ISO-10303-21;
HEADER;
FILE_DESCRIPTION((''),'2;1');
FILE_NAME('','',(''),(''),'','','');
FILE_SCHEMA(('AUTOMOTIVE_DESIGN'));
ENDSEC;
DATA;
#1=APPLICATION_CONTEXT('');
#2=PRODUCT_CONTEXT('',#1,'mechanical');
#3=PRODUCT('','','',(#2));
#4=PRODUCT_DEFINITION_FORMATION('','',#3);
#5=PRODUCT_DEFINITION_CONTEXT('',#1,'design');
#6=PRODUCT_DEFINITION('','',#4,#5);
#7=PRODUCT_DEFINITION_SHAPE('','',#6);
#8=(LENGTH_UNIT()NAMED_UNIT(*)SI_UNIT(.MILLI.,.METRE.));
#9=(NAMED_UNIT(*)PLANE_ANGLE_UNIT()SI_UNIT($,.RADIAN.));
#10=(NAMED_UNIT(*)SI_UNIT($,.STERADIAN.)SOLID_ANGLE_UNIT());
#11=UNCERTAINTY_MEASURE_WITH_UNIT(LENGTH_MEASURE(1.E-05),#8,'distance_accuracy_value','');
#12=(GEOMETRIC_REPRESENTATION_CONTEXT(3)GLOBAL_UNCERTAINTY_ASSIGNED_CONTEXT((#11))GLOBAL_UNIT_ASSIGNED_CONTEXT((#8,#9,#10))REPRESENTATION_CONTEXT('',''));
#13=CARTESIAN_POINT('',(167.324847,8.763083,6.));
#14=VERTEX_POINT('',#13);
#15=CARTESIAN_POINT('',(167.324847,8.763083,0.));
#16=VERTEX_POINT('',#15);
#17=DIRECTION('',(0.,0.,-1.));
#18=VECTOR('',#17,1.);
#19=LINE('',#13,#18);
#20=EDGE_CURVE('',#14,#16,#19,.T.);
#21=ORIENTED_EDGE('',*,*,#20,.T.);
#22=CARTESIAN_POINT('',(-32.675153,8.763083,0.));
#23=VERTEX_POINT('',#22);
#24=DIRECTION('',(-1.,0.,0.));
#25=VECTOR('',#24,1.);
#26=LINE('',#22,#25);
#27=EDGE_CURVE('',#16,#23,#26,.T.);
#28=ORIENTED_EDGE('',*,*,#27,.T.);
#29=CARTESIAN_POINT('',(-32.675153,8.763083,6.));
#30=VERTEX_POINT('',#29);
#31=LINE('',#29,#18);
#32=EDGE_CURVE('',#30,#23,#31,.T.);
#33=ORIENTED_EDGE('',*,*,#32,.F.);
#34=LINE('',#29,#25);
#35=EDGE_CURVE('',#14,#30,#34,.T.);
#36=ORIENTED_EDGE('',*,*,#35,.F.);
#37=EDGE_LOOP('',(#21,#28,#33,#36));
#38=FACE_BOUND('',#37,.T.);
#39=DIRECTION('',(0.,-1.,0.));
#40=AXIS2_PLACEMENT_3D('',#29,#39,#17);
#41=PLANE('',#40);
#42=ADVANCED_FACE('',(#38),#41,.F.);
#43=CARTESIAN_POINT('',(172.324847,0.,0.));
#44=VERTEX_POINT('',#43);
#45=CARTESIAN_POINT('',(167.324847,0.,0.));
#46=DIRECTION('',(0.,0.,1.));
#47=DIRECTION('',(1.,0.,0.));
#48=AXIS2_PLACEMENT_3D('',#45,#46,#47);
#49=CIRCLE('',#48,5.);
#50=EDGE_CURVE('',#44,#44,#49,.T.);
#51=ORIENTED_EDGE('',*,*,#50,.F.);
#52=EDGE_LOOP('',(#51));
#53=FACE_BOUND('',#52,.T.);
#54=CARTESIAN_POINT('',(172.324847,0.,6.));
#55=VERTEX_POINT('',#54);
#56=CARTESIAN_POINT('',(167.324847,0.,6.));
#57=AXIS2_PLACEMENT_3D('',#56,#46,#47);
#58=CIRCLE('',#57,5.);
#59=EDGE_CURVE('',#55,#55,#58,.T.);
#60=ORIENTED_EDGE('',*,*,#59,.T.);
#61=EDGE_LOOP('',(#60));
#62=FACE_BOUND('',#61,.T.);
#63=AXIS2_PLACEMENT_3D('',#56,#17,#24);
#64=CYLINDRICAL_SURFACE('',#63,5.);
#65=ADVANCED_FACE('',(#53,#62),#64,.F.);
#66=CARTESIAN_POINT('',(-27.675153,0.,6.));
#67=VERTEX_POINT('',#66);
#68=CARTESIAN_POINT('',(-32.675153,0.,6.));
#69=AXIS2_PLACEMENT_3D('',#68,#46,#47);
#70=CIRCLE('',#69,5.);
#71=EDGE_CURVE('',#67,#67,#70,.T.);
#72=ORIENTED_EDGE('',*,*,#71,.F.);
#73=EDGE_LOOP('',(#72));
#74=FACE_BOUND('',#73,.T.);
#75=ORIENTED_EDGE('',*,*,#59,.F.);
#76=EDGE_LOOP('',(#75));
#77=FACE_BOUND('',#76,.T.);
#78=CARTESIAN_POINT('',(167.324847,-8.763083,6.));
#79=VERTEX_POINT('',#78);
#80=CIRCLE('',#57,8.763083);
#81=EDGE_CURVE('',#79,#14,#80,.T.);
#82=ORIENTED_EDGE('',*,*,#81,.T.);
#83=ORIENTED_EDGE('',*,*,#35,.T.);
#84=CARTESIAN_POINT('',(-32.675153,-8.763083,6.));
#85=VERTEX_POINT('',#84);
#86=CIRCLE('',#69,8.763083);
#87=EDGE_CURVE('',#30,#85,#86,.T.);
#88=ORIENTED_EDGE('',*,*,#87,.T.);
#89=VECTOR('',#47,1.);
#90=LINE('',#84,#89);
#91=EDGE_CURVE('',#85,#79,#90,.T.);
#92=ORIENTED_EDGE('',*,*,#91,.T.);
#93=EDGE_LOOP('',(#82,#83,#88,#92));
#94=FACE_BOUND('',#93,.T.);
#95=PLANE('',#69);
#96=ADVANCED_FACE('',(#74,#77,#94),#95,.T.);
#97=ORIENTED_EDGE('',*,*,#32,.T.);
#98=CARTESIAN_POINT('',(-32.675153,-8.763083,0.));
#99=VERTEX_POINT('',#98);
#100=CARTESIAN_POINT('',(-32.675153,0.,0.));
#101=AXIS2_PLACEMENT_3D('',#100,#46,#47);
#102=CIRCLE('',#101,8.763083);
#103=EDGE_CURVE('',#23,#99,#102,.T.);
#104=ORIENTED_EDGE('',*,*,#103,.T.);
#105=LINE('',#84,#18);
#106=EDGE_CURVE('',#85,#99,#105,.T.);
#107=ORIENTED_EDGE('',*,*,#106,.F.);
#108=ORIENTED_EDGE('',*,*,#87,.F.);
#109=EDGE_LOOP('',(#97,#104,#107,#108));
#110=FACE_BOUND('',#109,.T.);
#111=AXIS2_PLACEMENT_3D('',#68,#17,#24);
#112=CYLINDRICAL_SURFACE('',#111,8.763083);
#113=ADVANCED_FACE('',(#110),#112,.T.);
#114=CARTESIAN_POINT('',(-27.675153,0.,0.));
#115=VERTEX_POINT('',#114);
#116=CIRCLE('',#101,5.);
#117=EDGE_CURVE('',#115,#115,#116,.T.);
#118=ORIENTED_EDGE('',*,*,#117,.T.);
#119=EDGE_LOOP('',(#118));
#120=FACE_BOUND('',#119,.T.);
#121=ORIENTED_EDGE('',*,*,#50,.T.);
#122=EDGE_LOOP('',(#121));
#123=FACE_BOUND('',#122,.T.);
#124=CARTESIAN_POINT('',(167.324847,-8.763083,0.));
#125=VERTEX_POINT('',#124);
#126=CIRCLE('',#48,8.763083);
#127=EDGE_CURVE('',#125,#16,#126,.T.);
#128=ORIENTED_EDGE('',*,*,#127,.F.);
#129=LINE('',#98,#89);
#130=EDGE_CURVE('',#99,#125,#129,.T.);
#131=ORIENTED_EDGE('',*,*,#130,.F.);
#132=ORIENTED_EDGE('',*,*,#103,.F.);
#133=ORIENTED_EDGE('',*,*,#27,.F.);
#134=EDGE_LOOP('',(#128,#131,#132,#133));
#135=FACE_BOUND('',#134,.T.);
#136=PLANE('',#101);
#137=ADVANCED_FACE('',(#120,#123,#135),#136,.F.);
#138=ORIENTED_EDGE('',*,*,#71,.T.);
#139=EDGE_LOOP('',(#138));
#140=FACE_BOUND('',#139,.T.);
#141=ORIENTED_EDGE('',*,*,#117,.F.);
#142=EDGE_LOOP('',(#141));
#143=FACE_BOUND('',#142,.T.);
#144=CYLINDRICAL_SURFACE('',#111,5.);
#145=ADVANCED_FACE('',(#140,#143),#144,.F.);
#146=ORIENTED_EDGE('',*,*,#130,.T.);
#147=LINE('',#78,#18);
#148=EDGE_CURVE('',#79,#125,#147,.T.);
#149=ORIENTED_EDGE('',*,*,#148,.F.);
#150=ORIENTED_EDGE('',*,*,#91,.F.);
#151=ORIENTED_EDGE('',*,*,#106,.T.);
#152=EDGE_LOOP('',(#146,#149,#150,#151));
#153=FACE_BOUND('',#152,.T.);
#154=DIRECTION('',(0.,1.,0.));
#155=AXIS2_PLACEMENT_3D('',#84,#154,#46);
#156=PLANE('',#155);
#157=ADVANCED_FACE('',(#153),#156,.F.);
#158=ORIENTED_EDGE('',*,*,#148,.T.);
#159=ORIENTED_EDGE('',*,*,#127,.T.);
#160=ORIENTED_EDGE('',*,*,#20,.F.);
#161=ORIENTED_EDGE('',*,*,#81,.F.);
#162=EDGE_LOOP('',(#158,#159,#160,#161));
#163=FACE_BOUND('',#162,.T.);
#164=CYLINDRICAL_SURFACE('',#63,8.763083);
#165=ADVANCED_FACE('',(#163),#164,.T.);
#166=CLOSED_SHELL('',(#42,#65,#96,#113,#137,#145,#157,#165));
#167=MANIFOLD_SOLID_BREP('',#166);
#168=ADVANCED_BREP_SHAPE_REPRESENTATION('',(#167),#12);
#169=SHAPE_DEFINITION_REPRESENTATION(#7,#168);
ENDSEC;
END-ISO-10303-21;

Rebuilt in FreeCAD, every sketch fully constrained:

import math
import FreeCAD as App
import Part
import Sketcher
Q = App.Units.Quantity

doc = App.newDocument("Part")
body = doc.addObject("PartDesign::Body", "Body")

# Sketch on XY plane
sketch1 = body.newObject("Sketcher::SketchObject", "Sketch")
sketch1.AttachmentSupport = (doc.getObject("XY_Plane"), [""])
sketch1.MapMode = "FlatFace"
sketch1.addGeometry(Part.LineSegment(App.Vector(167, 9, 0), App.Vector(-33, 9, 0)), False)
sketch1.addGeometry(Part.ArcOfCircle(Part.Circle(App.Vector(-33, 0, 0), App.Vector(0, 0, 1), 9), math.radians(90), math.radians(270)), False)
sketch1.addGeometry(Part.LineSegment(App.Vector(-33, -9, 0), App.Vector(167, -9, 0)), False)
sketch1.addGeometry(Part.ArcOfCircle(Part.Circle(App.Vector(167, 0, 0), App.Vector(0, 0, 1), 9), math.radians(-90), math.radians(90)), False)
sketch1.addGeometry(Part.Circle(App.Vector(167, 0, 0), App.Vector(0, 0, 1), 5), False)
sketch1.addGeometry(Part.Circle(App.Vector(-33, 0, 0), App.Vector(0, 0, 1), 5), False)
sketch1.addConstraint(Sketcher.Constraint("Tangent", 0, 2, 1, 1))
sketch1.addConstraint(Sketcher.Constraint("Tangent", 1, 2, 2, 1))
sketch1.addConstraint(Sketcher.Constraint("Tangent", 2, 2, 3, 1))
sketch1.addConstraint(Sketcher.Constraint("Tangent", 3, 2, 0, 1))
sketch1.addConstraint(Sketcher.Constraint("Horizontal", 0))
sketch1.addConstraint(Sketcher.Constraint("Horizontal", 2))
sketch1.addConstraint(Sketcher.Constraint("Coincident", 4, 3, 3, 3))
sketch1.addConstraint(Sketcher.Constraint("Coincident", 5, 3, 1, 3))
sketch1.addConstraint(Sketcher.Constraint("Equal", 4, 5))
sketch1.addConstraint(Sketcher.Constraint("PointOnObject", 1, 3, -1))
sketch1.addConstraint(Sketcher.Constraint("Diameter", 4, Q("10 mm")))
sketch1.addConstraint(Sketcher.Constraint("DistanceX", 0, 2, 0, 1, Q("200 mm")))
sketch1.addConstraint(Sketcher.Constraint("Radius", 1, Q("8.763083 mm")))
sketch1.addConstraint(Sketcher.Constraint("DistanceX", 1, 3, -1, 1, Q("32.675153 mm")))
pad1 = body.newObject("PartDesign::Pad", "Pad")
pad1.Profile = sketch1
pad1.Length = 6

doc.recompute()
